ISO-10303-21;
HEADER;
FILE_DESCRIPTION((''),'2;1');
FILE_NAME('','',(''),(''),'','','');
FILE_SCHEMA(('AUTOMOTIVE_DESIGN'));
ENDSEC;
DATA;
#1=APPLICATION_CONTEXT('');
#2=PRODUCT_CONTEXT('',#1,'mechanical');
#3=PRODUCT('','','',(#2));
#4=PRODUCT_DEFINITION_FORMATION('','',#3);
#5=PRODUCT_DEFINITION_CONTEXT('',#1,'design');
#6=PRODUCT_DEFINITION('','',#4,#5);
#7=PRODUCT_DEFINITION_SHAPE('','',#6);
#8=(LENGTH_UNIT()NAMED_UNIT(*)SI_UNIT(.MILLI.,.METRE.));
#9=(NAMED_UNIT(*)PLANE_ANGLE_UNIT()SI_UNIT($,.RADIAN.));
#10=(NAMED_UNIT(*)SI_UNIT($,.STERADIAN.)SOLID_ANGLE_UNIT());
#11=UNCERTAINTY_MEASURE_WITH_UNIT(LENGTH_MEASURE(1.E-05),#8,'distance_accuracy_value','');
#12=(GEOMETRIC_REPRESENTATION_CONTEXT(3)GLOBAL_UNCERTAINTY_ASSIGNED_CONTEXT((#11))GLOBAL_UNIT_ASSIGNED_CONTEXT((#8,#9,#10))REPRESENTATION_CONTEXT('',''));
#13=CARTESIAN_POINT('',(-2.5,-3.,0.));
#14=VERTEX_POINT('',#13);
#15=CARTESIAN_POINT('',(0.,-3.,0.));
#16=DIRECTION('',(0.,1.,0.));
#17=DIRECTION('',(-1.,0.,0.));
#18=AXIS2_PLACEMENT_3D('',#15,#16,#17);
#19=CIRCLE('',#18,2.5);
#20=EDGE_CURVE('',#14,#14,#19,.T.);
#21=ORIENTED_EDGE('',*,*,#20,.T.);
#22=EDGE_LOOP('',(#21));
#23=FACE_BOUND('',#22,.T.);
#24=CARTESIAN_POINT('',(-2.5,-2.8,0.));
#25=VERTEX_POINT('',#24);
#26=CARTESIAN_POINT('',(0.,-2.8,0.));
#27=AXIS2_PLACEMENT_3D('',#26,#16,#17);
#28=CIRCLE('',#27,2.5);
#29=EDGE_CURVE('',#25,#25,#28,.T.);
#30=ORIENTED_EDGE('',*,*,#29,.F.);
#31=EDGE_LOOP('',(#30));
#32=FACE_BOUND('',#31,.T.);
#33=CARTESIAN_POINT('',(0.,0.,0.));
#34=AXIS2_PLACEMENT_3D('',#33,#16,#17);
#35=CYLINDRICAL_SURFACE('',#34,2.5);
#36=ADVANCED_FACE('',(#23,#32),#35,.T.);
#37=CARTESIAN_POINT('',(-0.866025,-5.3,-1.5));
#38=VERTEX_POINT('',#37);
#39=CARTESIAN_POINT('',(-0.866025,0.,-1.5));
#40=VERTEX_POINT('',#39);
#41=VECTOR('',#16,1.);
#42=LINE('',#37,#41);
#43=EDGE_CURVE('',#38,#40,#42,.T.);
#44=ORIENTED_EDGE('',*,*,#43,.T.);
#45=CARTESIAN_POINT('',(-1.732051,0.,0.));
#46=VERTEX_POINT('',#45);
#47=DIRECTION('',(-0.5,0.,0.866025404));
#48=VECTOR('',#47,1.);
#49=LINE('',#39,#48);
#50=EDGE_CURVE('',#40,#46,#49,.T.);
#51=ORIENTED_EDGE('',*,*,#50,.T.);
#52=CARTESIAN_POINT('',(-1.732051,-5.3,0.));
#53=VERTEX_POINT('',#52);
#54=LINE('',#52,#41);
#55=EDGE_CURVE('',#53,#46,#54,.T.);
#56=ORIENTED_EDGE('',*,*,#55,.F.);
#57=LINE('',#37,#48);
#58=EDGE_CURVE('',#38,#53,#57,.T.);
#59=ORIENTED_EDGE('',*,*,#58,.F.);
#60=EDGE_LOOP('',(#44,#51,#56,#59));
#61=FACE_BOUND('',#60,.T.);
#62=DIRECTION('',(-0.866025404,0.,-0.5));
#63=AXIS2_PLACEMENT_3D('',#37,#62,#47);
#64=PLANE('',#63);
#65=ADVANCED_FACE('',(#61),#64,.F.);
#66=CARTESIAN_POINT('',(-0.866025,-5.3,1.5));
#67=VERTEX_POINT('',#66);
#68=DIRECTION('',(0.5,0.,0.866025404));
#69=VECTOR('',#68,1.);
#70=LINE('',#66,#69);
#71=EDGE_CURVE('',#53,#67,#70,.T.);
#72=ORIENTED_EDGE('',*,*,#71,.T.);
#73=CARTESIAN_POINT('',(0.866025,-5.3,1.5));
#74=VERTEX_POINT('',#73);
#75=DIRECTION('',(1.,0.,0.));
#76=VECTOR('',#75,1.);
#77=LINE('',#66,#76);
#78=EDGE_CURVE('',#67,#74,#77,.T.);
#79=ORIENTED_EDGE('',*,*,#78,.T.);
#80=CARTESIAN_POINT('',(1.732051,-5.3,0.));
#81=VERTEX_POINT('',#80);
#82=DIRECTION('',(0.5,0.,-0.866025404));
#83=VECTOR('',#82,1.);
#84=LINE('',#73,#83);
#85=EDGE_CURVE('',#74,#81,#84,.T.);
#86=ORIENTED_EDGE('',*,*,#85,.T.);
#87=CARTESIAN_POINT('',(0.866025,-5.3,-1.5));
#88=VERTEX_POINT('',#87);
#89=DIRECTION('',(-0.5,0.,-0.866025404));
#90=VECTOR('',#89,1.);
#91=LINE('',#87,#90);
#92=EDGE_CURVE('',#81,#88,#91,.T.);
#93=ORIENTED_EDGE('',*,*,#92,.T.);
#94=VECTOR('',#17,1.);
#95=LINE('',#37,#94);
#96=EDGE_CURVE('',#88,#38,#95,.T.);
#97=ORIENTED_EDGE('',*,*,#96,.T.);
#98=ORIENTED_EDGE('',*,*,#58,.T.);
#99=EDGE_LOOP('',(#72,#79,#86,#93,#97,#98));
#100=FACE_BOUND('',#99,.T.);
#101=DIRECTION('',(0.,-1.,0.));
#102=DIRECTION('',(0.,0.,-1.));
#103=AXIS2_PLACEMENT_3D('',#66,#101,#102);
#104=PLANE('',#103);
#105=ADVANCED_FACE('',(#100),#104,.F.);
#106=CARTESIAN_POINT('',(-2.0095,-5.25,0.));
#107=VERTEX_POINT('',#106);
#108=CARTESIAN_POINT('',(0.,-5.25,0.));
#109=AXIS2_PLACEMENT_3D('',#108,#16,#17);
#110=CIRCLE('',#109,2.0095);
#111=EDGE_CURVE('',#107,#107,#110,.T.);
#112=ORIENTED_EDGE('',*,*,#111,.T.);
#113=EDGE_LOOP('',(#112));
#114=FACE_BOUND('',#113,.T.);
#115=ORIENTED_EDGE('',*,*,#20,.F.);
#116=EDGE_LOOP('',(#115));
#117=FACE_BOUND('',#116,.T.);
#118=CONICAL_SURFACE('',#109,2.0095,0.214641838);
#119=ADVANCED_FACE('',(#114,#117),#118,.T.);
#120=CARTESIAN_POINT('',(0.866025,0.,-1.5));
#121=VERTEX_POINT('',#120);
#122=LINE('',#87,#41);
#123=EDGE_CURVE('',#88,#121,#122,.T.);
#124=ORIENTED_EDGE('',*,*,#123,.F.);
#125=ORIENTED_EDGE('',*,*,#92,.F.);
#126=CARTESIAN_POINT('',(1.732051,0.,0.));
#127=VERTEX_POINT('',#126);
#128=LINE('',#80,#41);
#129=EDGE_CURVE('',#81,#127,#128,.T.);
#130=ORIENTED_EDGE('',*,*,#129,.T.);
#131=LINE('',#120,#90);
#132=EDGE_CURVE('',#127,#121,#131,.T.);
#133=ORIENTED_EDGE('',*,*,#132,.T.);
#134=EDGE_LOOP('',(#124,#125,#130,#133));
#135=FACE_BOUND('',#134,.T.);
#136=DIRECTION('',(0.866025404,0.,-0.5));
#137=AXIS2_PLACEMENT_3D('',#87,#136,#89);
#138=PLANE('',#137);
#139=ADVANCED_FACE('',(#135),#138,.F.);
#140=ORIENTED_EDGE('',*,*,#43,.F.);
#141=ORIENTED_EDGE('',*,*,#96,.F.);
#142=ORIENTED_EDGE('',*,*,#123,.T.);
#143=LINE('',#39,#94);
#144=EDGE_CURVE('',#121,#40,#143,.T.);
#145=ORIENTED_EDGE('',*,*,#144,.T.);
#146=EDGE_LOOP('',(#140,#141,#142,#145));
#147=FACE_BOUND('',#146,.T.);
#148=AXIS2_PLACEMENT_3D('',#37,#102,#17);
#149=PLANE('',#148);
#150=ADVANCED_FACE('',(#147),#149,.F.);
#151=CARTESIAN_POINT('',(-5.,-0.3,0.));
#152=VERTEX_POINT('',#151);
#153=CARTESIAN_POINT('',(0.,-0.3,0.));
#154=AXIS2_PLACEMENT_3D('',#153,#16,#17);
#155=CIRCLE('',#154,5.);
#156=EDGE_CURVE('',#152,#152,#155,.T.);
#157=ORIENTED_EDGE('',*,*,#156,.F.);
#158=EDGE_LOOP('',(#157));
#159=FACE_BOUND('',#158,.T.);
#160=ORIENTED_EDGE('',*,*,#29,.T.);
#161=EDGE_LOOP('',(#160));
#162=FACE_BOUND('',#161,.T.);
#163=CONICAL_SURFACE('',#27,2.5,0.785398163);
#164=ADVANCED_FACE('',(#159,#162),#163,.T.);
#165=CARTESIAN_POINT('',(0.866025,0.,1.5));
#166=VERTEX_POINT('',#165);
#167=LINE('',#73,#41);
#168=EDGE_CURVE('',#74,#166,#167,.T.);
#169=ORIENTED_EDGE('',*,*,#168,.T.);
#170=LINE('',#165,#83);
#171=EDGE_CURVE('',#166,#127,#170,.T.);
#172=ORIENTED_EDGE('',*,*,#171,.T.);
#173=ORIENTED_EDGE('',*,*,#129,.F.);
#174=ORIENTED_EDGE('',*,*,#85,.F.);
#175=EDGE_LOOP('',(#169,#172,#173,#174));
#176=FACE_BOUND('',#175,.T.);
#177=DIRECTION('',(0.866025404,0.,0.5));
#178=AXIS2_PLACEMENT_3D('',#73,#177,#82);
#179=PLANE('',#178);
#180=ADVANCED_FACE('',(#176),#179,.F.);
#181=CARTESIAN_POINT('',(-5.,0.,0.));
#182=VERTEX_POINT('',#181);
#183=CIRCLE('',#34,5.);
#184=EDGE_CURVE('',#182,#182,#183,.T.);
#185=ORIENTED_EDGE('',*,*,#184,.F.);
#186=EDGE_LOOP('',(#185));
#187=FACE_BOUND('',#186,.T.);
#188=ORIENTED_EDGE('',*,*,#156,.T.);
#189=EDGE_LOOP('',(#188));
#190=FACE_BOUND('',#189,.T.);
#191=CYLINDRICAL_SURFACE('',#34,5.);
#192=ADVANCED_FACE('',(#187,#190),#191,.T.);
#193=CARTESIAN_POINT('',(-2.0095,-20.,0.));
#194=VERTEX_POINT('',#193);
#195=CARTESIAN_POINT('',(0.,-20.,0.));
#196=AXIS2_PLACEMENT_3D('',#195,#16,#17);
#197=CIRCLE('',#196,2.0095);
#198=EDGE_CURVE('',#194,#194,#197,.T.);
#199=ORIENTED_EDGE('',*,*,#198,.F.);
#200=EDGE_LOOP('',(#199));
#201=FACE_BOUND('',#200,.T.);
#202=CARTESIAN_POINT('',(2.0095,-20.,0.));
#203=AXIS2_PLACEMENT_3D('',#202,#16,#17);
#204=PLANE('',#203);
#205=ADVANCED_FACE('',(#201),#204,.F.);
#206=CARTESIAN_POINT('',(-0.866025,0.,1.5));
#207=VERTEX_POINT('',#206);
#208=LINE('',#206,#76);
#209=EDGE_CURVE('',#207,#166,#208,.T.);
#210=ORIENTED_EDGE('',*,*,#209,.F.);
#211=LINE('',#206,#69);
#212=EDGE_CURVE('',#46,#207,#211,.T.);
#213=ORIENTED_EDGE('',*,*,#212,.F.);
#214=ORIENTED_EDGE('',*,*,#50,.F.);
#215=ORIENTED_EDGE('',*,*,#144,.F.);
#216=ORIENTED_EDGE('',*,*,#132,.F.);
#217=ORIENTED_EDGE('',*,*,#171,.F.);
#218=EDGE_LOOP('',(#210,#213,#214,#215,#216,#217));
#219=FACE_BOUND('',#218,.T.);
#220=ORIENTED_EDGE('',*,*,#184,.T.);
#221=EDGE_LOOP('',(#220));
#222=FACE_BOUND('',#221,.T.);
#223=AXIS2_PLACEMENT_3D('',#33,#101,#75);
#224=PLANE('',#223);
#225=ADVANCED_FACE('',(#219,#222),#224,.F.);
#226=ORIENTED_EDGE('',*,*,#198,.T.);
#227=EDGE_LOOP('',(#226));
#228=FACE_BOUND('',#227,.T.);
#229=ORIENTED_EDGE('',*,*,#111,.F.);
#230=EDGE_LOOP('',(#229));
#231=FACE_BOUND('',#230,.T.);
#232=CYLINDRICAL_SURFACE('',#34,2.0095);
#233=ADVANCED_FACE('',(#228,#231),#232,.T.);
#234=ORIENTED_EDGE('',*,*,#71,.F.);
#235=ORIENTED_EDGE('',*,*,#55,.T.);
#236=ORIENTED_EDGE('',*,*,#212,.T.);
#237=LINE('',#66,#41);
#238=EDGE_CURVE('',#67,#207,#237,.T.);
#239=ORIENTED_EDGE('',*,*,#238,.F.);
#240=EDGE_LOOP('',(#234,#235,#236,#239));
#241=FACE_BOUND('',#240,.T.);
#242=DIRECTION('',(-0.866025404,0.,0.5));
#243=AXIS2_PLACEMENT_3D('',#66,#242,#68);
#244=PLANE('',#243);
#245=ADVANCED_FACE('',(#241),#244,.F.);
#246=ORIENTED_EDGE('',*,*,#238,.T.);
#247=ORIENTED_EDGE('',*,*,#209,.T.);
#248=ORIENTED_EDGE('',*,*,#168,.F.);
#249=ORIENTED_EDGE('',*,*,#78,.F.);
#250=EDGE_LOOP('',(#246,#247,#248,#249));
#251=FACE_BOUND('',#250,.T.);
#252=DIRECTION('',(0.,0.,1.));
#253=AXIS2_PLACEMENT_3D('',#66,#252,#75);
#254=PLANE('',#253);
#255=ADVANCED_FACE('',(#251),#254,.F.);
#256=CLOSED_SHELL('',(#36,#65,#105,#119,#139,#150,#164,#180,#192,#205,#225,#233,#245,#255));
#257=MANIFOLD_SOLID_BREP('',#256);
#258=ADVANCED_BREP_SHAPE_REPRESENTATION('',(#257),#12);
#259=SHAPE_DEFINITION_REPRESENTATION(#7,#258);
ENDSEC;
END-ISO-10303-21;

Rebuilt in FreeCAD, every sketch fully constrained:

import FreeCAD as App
import Part
import Sketcher
Q = App.Units.Quantity

doc = App.newDocument("Part")
body = doc.addObject("PartDesign::Body", "Body")

# Sketch on XY plane
sketch1 = body.newObject("Sketcher::SketchObject", "Sketch")
sketch1.AttachmentSupport = (doc.getObject("XY_Plane"), [""])
sketch1.MapMode = "FlatFace"
sketch1.addGeometry([
    Part.LineSegment(App.Vector(5, 0, 0), App.Vector(0, 0, 0)),  # 0
    Part.LineSegment(App.Vector(0, 0, 0), App.Vector(0, -20, 0)),  # 1
    Part.LineSegment(App.Vector(0, -20, 0), App.Vector(2.01, -20, 0)),  # 2
    Part.LineSegment(App.Vector(2.01, -20, 0), App.Vector(2.01, -5.25, 0)),  # 3
    Part.LineSegment(App.Vector(2.01, -5.25, 0), App.Vector(2.5, -3, 0)),  # 4
    Part.LineSegment(App.Vector(2.5, -3, 0), App.Vector(2.5, -2.8, 0)),  # 5
    Part.LineSegment(App.Vector(2.5, -2.8, 0), App.Vector(5, -0.3, 0)),  # 6
    Part.LineSegment(App.Vector(5, -0.3, 0), App.Vector(5, 0, 0)),  # 7
], False)
sketch1.addConstraint([
    Sketcher.Constraint("Coincident", 0, 2, 1, 1),
    Sketcher.Constraint("Coincident", 1, 2, 2, 1),
    Sketcher.Constraint("Coincident", 2, 2, 3, 1),
    Sketcher.Constraint("Coincident", 3, 2, 4, 1),
    Sketcher.Constraint("Coincident", 4, 2, 5, 1),
    Sketcher.Constraint("Coincident", 5, 2, 6, 1),
    Sketcher.Constraint("Coincident", 6, 2, 7, 1),
    Sketcher.Constraint("Coincident", 7, 2, 0, 1),
    Sketcher.Constraint("Horizontal", 0),
    Sketcher.Constraint("Vertical", 1),
    Sketcher.Constraint("Horizontal", 2),
    Sketcher.Constraint("Vertical", 3),
    Sketcher.Constraint("Vertical", 5),
    Sketcher.Constraint("Vertical", 7),
    Sketcher.Constraint("Coincident", 0, 2, -1, 1),
    Sketcher.Constraint("DistanceX", 0, 2, 0, 1, 5.0),
    Sketcher.Constraint("DistanceY", 1, 2, 1, 1, 20.0),
    Sketcher.Constraint("Angle", 6, Q("45 deg")),
    Sketcher.Constraint("DistanceY", 5, 1, 5, 2, 0.2),
    Sketcher.Constraint("DistanceY", 7, 1, 7, 2, 0.3),
    Sketcher.Constraint("DistanceY", 4, 2, -1, 1, 3.0),
    Sketcher.Constraint("DistanceY", 3, 1, 3, 2, 14.75),
    Sketcher.Constraint("DistanceX", 2, 1, 2, 2, 2.0095),
])
revolution = body.newObject("PartDesign::Revolution", "Revolution")
revolution.Profile = sketch1
revolution.ReferenceAxis = (sketch1, ["V_Axis"])
revolution.Angle = 360

# Sketch on XZ plane
sketch2 = body.newObject("Sketcher::SketchObject", "Sketch001")
sketch2.AttachmentSupport = (doc.getObject("XZ_Plane"), [""])
sketch2.MapMode = "FlatFace"
sketch2.addGeometry([
    Part.LineSegment(App.Vector(0.9, -1.5, 0), App.Vector(-0.9, -1.5, 0)),  # 0
    Part.LineSegment(App.Vector(-0.9, -1.5, 0), App.Vector(-1.7, 0, 0)),  # 1
    Part.LineSegment(App.Vector(-1.7, 0, 0), App.Vector(-0.9, 1.5, 0)),  # 2
    Part.LineSegment(App.Vector(-0.9, 1.5, 0), App.Vector(0.9, 1.5, 0)),  # 3
    Part.LineSegment(App.Vector(0.9, 1.5, 0), App.Vector(1.7, 0, 0)),  # 4
    Part.LineSegment(App.Vector(1.7, 0, 0), App.Vector(0.9, -1.5, 0)),  # 5
], False)
sketch2.addConstraint([
    Sketcher.Constraint("Coincident", 0, 2, 1, 1),
    Sketcher.Constraint("Coincident", 1, 2, 2, 1),
    Sketcher.Constraint("Coincident", 2, 2, 3, 1),
    Sketcher.Constraint("Coincident", 3, 2, 4, 1),
    Sketcher.Constraint("Coincident", 4, 2, 5, 1),
    Sketcher.Constraint("Coincident", 5, 2, 0, 1),
    Sketcher.Constraint("Horizontal", 0),
    Sketcher.Constraint("Horizontal", 3),
    Sketcher.Constraint("Symmetric", 0, 2, 3, 2, -1, 1),
    Sketcher.Constraint("Symmetric", 1, 2, 4, 2, -1, 1),
    Sketcher.Constraint("PointOnObject", 1, 2, -1),
    Sketcher.Constraint("Parallel", 2, 5),
    Sketcher.Constraint("Vertical", 0, 2, 2, 2),
    Sketcher.Constraint("Angle", 1, Q("120 deg")),
    Sketcher.Constraint("DistanceY", 0, 2, 2, 2, 3.0),
    Sketcher.Constraint("DistanceX", 0, 2, 0, 1, 1.732051),
])
pocket1 = body.newObject("PartDesign::Pocket", "Pocket")
pocket1.Profile = sketch2
pocket1.Length = 5.3
pocket1.Reversed = True

doc.recompute()
